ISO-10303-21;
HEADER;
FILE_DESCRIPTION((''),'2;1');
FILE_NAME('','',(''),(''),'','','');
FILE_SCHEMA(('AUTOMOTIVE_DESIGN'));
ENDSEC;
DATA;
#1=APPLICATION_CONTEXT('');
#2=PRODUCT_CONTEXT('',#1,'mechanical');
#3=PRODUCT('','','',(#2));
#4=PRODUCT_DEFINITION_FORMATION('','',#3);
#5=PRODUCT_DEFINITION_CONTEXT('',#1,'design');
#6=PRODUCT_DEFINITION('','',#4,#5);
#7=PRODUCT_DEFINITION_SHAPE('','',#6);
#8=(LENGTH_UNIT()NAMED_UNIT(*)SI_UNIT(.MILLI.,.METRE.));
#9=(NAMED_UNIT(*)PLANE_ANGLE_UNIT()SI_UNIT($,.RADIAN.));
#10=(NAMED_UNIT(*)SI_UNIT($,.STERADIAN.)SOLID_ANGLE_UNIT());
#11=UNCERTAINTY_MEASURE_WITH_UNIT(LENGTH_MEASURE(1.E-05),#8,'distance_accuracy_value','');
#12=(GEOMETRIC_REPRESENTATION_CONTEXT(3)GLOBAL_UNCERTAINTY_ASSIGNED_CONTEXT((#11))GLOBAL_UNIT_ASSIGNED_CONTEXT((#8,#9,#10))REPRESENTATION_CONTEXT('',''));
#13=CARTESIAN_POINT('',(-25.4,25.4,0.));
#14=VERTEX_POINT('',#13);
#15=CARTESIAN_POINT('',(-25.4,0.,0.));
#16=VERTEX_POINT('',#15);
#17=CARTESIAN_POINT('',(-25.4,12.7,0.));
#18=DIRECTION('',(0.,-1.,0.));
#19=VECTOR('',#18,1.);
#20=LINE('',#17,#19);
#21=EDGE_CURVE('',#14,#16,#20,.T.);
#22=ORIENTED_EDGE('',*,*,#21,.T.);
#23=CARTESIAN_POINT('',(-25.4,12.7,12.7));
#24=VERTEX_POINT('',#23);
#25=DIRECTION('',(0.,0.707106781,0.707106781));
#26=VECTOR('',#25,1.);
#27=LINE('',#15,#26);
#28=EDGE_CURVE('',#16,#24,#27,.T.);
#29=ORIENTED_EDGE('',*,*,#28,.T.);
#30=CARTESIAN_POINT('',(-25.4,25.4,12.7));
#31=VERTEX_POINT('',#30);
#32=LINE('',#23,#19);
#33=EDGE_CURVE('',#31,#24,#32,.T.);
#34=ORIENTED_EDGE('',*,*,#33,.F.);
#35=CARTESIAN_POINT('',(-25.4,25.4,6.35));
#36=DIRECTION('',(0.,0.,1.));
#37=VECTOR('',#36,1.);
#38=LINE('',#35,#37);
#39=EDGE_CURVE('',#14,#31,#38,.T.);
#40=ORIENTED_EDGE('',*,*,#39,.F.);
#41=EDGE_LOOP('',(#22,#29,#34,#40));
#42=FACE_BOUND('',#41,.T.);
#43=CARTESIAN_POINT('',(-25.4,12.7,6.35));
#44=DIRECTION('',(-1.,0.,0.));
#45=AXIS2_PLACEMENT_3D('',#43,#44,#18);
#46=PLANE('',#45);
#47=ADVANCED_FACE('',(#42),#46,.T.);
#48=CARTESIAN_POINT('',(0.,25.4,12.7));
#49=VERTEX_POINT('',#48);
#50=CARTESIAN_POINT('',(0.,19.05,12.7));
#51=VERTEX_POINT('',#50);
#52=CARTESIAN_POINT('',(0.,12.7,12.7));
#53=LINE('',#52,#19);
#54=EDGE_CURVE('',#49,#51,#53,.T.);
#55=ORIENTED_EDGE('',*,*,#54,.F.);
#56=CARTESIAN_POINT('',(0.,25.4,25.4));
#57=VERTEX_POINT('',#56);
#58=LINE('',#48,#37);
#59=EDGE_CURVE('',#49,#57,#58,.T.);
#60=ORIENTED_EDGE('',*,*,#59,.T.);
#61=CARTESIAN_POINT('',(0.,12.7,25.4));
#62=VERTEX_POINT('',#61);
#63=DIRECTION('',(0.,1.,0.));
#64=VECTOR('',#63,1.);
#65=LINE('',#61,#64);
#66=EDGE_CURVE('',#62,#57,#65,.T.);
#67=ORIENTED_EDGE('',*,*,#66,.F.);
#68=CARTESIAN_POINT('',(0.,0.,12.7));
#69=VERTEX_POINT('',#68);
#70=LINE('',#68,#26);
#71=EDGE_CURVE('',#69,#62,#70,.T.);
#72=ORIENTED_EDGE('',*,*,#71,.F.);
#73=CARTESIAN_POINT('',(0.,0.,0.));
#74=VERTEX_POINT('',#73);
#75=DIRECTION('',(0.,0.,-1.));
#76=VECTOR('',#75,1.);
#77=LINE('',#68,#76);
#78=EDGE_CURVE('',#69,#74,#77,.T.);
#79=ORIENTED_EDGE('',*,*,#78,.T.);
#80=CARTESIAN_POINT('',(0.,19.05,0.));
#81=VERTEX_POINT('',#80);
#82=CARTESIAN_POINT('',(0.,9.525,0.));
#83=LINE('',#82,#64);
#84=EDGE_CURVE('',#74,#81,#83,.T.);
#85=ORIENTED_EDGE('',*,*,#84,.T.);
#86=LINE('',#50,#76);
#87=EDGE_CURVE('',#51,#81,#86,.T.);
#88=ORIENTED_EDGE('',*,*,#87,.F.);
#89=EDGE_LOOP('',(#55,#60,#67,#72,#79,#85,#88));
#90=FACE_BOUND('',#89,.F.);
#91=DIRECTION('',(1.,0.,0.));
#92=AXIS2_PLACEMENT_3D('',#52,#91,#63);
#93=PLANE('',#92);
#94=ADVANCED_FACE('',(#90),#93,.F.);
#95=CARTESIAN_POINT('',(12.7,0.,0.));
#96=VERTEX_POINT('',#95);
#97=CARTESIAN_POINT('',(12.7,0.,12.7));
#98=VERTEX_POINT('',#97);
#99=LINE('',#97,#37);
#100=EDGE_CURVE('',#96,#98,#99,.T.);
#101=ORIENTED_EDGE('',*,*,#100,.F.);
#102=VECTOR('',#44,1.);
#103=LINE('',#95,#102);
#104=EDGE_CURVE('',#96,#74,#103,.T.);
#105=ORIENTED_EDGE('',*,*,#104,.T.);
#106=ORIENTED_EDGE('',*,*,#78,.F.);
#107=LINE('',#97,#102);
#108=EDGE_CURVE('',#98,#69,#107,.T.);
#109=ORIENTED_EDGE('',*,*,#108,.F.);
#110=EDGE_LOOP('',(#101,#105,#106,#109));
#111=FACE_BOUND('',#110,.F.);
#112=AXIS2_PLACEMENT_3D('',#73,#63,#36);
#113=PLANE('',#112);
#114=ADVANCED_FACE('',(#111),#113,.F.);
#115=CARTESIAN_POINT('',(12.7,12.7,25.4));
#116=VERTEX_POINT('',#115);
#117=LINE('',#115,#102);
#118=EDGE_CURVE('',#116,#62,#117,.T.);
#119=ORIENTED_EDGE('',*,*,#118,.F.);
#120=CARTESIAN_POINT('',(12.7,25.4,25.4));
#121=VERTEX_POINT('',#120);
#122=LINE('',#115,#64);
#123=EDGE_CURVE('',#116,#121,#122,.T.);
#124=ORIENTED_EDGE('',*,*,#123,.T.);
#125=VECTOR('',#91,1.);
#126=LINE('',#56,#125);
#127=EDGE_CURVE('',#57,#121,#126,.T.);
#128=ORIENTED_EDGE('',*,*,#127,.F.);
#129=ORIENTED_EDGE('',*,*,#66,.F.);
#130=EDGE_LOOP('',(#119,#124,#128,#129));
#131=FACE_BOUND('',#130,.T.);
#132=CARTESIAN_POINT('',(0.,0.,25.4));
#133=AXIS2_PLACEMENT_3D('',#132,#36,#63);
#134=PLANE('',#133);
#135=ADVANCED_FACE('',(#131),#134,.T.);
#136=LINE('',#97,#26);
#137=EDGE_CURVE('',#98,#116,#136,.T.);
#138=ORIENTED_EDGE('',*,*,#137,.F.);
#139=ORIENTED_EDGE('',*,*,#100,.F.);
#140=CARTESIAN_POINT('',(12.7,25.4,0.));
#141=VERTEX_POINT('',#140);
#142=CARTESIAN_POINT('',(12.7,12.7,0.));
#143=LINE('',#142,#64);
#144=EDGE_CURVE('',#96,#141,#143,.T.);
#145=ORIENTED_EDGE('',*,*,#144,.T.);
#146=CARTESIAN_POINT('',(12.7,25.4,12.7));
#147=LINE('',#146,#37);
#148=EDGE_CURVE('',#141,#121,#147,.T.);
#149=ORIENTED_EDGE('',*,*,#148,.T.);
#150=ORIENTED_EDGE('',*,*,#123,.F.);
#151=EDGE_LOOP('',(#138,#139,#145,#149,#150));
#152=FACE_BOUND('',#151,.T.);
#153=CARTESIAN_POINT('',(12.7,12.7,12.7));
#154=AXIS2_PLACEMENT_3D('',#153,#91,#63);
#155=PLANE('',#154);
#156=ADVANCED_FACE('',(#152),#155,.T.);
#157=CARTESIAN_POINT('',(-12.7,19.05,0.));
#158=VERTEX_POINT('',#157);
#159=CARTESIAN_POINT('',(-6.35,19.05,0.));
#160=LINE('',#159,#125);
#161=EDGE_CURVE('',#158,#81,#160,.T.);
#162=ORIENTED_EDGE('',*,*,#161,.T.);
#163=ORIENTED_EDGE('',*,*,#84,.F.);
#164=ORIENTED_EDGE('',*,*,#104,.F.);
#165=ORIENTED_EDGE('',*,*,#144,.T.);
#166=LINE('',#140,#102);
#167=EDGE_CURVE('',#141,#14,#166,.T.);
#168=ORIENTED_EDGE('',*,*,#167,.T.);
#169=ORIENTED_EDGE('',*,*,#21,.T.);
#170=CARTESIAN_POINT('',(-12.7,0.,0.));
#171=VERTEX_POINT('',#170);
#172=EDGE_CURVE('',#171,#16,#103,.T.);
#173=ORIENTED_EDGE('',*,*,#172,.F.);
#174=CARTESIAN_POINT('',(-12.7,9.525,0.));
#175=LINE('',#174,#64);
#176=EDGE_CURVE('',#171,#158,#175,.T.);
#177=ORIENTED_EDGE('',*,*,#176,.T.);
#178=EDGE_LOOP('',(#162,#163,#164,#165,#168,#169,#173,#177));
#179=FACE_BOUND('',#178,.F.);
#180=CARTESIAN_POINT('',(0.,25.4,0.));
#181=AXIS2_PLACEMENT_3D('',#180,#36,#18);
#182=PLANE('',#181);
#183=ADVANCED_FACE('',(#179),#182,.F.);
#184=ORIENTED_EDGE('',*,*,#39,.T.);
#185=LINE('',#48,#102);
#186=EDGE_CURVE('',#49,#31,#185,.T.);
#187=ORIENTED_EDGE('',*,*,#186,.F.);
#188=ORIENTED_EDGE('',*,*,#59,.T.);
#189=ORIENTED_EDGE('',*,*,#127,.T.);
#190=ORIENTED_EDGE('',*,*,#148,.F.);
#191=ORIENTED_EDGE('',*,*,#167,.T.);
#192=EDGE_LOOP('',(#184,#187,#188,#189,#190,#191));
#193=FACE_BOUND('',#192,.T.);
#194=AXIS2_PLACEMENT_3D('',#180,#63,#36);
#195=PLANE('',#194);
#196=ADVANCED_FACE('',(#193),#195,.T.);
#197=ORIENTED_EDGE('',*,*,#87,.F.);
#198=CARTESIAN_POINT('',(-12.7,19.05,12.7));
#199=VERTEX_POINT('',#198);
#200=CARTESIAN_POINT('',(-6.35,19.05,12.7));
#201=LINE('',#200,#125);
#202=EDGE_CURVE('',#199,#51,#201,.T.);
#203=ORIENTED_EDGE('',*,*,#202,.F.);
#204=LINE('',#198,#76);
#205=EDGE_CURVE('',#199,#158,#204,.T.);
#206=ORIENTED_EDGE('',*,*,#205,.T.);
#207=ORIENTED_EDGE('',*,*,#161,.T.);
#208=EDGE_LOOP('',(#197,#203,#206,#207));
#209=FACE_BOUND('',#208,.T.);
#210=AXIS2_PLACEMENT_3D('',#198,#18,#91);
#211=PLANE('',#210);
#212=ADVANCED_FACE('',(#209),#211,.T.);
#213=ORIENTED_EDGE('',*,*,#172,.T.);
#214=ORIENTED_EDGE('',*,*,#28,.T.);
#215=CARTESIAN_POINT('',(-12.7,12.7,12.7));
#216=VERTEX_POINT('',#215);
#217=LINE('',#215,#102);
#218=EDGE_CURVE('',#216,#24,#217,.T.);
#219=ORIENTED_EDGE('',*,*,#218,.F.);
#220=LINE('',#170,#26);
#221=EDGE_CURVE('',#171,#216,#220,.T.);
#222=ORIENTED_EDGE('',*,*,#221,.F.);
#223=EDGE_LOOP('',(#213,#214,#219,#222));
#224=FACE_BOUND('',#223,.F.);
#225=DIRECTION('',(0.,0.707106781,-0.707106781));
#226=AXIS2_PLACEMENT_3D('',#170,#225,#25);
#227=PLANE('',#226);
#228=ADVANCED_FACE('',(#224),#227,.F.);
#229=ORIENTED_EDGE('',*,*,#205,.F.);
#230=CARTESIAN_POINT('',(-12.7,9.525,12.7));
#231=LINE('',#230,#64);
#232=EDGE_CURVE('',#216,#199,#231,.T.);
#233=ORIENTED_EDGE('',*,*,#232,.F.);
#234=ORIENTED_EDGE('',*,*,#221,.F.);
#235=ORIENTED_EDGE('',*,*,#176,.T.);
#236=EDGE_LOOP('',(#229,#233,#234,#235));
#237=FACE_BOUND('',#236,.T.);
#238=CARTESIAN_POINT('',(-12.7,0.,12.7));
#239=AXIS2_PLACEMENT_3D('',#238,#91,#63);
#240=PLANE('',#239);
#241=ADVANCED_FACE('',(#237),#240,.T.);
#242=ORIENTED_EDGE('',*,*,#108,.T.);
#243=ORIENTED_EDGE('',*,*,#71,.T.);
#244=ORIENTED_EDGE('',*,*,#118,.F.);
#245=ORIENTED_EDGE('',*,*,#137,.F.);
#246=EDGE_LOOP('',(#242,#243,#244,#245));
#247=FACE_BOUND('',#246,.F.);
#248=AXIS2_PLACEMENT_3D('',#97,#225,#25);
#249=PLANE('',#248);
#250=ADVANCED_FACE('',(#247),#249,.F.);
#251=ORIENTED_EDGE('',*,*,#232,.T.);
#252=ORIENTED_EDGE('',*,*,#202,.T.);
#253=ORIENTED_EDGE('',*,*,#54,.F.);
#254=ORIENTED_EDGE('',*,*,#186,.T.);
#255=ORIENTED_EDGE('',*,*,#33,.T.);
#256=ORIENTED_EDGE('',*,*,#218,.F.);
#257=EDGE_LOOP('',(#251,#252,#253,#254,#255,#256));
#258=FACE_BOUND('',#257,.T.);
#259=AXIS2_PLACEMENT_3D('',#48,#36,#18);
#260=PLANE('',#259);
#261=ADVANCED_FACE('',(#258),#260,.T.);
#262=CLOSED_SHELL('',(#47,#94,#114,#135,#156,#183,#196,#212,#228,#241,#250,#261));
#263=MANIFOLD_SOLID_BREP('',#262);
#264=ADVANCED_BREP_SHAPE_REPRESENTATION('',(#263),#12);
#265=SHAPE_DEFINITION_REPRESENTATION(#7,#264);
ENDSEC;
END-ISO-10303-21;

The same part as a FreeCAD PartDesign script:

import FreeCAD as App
import Part
import Sketcher
Q = App.Units.Quantity

doc = App.newDocument("Part")
body = doc.addObject("PartDesign::Body", "Body")

sketch1 = body.newObject("Sketcher::SketchObject", "Sketch")
sketch1.AttachmentSupport = (doc.getObject("YZ_Plane"), [""])
sketch1.MapMode = "FlatFace"
sketch1.addGeometry(Part.LineSegment(App.Vector(0, 25, 0), App.Vector(0, 0, 0)), False)
sketch1.addGeometry(Part.LineSegment(App.Vector(0, 0, 0), App.Vector(25, 0, 0)), False)
sketch1.addGeometry(Part.LineSegment(App.Vector(25, 0, 0), App.Vector(25, 25, 0)), False)
sketch1.addGeometry(Part.LineSegment(App.Vector(25, 25, 0), App.Vector(0, 25, 0)), False)
sketch1.addConstraint(Sketcher.Constraint("Coincident", 0, 2, 1, 1))
sketch1.addConstraint(Sketcher.Constraint("Coincident", 1, 2, 2, 1))
sketch1.addConstraint(Sketcher.Constraint("Coincident", 2, 2, 3, 1))
sketch1.addConstraint(Sketcher.Constraint("Coincident", 3, 2, 0, 1))
sketch1.addConstraint(Sketcher.Constraint("Vertical", 0))
sketch1.addConstraint(Sketcher.Constraint("Horizontal", 1))
sketch1.addConstraint(Sketcher.Constraint("Vertical", 2))
sketch1.addConstraint(Sketcher.Constraint("Horizontal", 3))
sketch1.addConstraint(Sketcher.Constraint("Coincident", 0, 2, -1, 1))
sketch1.addConstraint(Sketcher.Constraint("Equal", 3, 0))
sketch1.addConstraint(Sketcher.Constraint("DistanceX", 1, 1, 1, 2, Q("1 in")))
pad1 = body.newObject("PartDesign::Pad", "Pad")
pad1.Profile = sketch1
pad1.Length = Q("0.5 in")

sketch2 = body.newObject("Sketcher::SketchObject", "Sketch001")
sketch2.AttachmentSupport = (doc.getObject("YZ_Plane"), [""])
sketch2.MapMode = "FlatFace"
sketch2.AttachmentOffset = App.Placement(App.Vector(0, 0, 0.5 * 25.4), App.Rotation())
sketch2.addGeometry(Part.LineSegment(App.Vector(13, 25, 0), App.Vector(0, 25, 0)), False)
sketch2.addGeometry(Part.LineSegment(App.Vector(0, 25, 0), App.Vector(0, 13, 0)), False)
sketch2.addGeometry(Part.LineSegment(App.Vector(0, 13, 0), App.Vector(13, 25, 0)), False)
sketch2.addConstraint(Sketcher.Constraint("Coincident", 0, 2, 1, 1))
sketch2.addConstraint(Sketcher.Constraint("Coincident", 1, 2, 2, 1))
sketch2.addConstraint(Sketcher.Constraint("Coincident", 2, 2, 0, 1))
sketch2.addConstraint(Sketcher.Constraint("Horizontal", 0))
sketch2.addConstraint(Sketcher.Constraint("Vertical", 1))
sketch2.addConstraint(Sketcher.Constraint("PointOnObject", 0, 2, -2))
sketch2.addConstraint(Sketcher.Constraint("Equal", 0, 1))
sketch2.addConstraint(Sketcher.Constraint("DistanceX", 0, 2, 0, 1, Q("0.5 in")))
sketch2.addConstraint(Sketcher.Constraint("DistanceY", -1, 1, 0, 2, Q("1 in")))
pocket1 = body.newObject("PartDesign::Pocket", "Pocket")
pocket1.Profile = sketch2
pocket1.Length = Q("0.5 in")

sketch3 = body.newObject("Sketcher::SketchObject", "Sketch002")
sketch3.AttachmentSupport = (doc.getObject("YZ_Plane"), [""])
sketch3.MapMode = "FlatFace"
sketch3.addGeometry(Part.LineSegment(App.Vector(25, 13, 0), App.Vector(25, 0, 0)), False)
sketch3.addGeometry(Part.LineSegment(App.Vector(25, 0, 0), App.Vector(0, 0, 0)), False)
sketch3.addGeometry(Part.LineSegment(App.Vector(0, 0, 0), App.Vector(0, 13, 0)), False)
sketch3.addGeometry(Part.LineSegment(App.Vector(0, 13, 0), App.Vector(25, 13, 0)), False)
sketch3.addConstraint(Sketcher.Constraint("Coincident", 0, 2, 1, 1))
sketch3.addConstraint(Sketcher.Constraint("Coincident", 1, 2, 2, 1))
sketch3.addConstraint(Sketcher.Constraint("Coincident", 2, 2, 3, 1))
sketch3.addConstraint(Sketcher.Constraint("Coincident", 3, 2, 0, 1))
sketch3.addConstraint(Sketcher.Constraint("Vertical", 0))
sketch3.addConstraint(Sketcher.Constraint("Horizontal", 1))
sketch3.addConstraint(Sketcher.Constraint("Vertical", 2))
sketch3.addConstraint(Sketcher.Constraint("Horizontal", 3))
sketch3.addConstraint(Sketcher.Constraint("Coincident", 1, 2, -1, 1))
sketch3.addConstraint(Sketcher.Constraint("DistanceX", 1, 2, 1, 1, Q("1 in")))
sketch3.addConstraint(Sketcher.Constraint("DistanceY", 0, 2, 0, 1, Q("0.5 in")))
pad2 = body.newObject("PartDesign::Pad", "Pad001")
pad2.Profile = sketch3
pad2.Length = Q("1 in")
pad2.Reversed = True

sketch4 = body.newObject("Sketcher::SketchObject", "Sketch003")
sketch4.AttachmentSupport = (doc.getObject("XY_Plane"), [""])
sketch4.MapMode = "FlatFace"
sketch4.AttachmentOffset = App.Placement(App.Vector(0, 0, 0.5 * 25.4), App.Rotation())
sketch4.addGeometry(Part.LineSegment(App.Vector(-13, 19, 0), App.Vector(-13, 0, 0)), False)
sketch4.addGeometry(Part.LineSegment(App.Vector(-13, 0, 0), App.Vector(0, 0, 0)), False)
sketch4.addGeometry(Part.LineSegment(App.Vector(0, 0, 0), App.Vector(0, 19, 0)), False)
sketch4.addGeometry(Part.LineSegment(App.Vector(0, 19, 0), App.Vector(-13, 19, 0)), False)
sketch4.addConstraint(Sketcher.Constraint("Coincident", 0, 2, 1, 1))
sketch4.addConstraint(Sketcher.Constraint("Coincident", 1, 2, 2, 1))
sketch4.addConstraint(Sketcher.Constraint("Coincident", 2, 2, 3, 1))
sketch4.addConstraint(Sketcher.Constraint("Coincident", 3, 2, 0, 1))
sketch4.addConstraint(Sketcher.Constraint("Vertical", 0))
sketch4.addConstraint(Sketcher.Constraint("Horizontal", 1))
sketch4.addConstraint(Sketcher.Constraint("Vertical", 2))
sketch4.addConstraint(Sketcher.Constraint("Horizontal", 3))
sketch4.addConstraint(Sketcher.Constraint("Coincident", 1, 2, -1, 1))
sketch4.addConstraint(Sketcher.Constraint("DistanceX", 1, 1, 1, 2, Q("0.5 in")))
sketch4.addConstraint(Sketcher.Constraint("DistanceY", 0, 2, 0, 1, Q("0.75 in")))
pocket2 = body.newObject("PartDesign::Pocket", "Pocket001")
pocket2.Profile = sketch4
pocket2.Length = Q("0.5 in")

sketch5 = body.newObject("Sketcher::SketchObject", "Sketch004")
sketch5.AttachmentSupport = (doc.getObject("YZ_Plane"), [""])
sketch5.MapMode = "FlatFace"
sketch5.AttachmentOffset = App.Placement(App.Vector(0, 0, -0.5 * 25.4), App.Rotation())
sketch5.addGeometry(Part.LineSegment(App.Vector(13, 13, 0), App.Vector(0, 13, 0)), False)
sketch5.addGeometry(Part.LineSegment(App.Vector(0, 13, 0), App.Vector(0, 0, 0)), False)
sketch5.addGeometry(Part.LineSegment(App.Vector(0, 0, 0), App.Vector(13, 13, 0)), False)
sketch5.addConstraint(Sketcher.Constraint("Coincident", 0, 2, 1, 1))
sketch5.addConstraint(Sketcher.Constraint("Coincident", 1, 2, 2, 1))
sketch5.addConstraint(Sketcher.Constraint("Coincident", 2, 2, 0, 1))
sketch5.addConstraint(Sketcher.Constraint("Horizontal", 0))
sketch5.addConstraint(Sketcher.Constraint("Vertical", 1))
sketch5.addConstraint(Sketcher.Constraint("Coincident", 1, 2, -1, 1))
sketch5.addConstraint(Sketcher.Constraint("Equal", 0, 1))
sketch5.addConstraint(Sketcher.Constraint("DistanceX", 0, 2, 0, 1, Q("0.5 in")))
pocket3 = body.newObject("PartDesign::Pocket", "Pocket002")
pocket3.Profile = sketch5
pocket3.Length = Q("0.5 in")

doc.recompute()
